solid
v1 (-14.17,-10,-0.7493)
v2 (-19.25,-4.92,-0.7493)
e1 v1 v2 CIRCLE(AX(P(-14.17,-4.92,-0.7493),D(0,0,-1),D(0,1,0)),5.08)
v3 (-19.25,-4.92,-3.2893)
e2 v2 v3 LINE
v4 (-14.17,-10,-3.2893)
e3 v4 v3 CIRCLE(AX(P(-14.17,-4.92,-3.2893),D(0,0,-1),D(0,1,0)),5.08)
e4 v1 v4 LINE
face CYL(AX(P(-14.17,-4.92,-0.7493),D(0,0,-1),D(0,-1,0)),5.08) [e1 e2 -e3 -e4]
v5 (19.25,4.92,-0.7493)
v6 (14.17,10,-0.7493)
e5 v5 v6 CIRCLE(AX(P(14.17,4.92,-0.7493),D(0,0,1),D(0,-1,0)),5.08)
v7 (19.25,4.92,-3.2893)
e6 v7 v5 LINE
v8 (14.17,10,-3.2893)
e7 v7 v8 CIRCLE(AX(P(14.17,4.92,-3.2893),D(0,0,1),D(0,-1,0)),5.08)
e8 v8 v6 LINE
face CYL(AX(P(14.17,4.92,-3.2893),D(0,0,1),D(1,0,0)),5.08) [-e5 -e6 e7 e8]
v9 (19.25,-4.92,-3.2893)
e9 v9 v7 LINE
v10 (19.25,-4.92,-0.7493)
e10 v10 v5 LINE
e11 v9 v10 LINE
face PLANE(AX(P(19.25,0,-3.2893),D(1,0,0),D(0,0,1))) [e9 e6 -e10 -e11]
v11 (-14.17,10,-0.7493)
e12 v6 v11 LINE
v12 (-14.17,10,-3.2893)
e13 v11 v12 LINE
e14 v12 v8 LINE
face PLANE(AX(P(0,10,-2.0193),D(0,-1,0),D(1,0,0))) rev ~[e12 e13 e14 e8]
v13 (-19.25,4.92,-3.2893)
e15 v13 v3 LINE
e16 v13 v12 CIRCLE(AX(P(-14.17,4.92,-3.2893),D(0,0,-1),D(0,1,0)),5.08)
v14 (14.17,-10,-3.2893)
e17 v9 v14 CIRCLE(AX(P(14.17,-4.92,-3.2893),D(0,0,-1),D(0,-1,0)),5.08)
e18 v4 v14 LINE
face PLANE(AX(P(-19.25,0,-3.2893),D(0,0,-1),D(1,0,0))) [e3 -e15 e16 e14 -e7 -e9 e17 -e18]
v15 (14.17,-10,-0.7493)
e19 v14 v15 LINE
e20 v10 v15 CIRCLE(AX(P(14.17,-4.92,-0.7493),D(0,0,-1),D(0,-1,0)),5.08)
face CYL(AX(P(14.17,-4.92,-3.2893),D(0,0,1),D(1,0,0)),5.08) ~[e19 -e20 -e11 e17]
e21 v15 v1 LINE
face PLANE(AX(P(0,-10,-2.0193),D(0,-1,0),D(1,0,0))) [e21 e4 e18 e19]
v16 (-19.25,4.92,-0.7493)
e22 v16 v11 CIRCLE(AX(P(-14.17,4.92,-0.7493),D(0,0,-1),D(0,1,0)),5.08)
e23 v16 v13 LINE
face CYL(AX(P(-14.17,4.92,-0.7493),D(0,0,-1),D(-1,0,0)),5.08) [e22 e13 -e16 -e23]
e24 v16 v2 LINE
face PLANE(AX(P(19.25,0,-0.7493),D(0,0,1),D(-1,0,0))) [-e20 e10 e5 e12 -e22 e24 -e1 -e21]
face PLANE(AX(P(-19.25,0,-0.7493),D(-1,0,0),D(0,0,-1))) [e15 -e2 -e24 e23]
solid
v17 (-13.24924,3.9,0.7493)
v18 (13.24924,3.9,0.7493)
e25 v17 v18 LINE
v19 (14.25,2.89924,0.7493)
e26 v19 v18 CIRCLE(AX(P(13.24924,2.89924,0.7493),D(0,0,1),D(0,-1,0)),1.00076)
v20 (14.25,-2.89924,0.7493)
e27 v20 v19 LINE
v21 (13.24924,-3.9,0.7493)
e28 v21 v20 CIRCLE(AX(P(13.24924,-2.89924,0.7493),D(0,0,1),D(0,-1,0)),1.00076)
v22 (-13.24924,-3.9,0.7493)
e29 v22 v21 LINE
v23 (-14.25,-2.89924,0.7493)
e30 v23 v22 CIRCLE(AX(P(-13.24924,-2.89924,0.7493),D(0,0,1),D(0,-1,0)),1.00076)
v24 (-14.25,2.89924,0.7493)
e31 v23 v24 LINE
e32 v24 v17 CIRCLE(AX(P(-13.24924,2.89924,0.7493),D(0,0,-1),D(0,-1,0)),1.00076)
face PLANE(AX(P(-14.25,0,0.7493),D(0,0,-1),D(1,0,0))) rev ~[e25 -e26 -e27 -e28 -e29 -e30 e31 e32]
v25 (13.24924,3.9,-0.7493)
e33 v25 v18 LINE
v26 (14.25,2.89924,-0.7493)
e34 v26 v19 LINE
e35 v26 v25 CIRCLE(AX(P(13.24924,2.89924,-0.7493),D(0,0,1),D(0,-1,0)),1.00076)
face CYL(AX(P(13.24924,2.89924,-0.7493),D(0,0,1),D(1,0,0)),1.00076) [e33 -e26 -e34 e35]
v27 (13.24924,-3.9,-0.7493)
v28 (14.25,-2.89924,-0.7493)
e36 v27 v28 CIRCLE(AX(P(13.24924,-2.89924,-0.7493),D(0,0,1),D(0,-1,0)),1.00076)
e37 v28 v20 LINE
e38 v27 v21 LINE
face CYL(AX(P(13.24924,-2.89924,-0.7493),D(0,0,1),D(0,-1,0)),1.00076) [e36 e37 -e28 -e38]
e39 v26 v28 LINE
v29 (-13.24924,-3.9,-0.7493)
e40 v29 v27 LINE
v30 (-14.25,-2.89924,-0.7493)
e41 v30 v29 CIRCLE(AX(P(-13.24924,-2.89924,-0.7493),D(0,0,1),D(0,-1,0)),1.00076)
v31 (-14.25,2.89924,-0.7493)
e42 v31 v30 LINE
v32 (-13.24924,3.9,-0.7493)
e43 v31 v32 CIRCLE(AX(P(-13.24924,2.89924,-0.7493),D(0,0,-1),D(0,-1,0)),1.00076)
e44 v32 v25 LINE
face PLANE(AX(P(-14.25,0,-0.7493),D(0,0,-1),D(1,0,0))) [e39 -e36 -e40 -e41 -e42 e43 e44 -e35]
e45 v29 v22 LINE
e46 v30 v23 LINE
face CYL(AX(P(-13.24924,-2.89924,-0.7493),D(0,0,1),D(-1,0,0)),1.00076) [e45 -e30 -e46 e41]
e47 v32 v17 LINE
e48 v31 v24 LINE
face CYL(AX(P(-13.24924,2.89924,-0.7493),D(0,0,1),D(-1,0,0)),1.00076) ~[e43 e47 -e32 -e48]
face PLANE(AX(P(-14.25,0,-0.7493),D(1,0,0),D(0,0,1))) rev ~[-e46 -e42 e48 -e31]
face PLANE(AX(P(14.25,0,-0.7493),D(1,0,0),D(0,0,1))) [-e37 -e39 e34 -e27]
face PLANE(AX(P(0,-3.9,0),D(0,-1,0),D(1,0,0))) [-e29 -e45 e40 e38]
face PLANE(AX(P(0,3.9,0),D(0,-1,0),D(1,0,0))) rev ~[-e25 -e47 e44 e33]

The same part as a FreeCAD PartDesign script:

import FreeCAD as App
import Part
import Sketcher
from FreeCAD import Vector
Q = App.Units.Quantity


def edges_at(feature, points):
    """Names of the edges that pass closest to the given points."""
    edges = feature.Shape.Edges
    near = lambda p: min(range(len(edges)), key=lambda i: edges[i].distToShape(Part.Vertex(*p))[0])
    return sorted({f"Edge{near(p) + 1}" for p in points})

doc = App.newDocument("Part")
body = doc.addObject("PartDesign::Body", "Body")

# Sketch on XZ plane
sketch1 = doc.addObject("Sketcher::SketchObject", "Sketch")
body.addObject(sketch1)
sketch1.AttachmentSupport = (doc.XZ_Plane, [""])
sketch1.MapMode = "FlatFace"
sketch1.addGeometry([
    Part.LineSegment(Vector(-14.2, 0.7, 0), Vector(-14.2, -0.7, 0)),
    Part.LineSegment(Vector(-14.2, -0.7, 0), Vector(14.2, -0.7, 0)),
    Part.LineSegment(Vector(14.2, -0.7, 0), Vector(14.2, 0.7, 0)),
    Part.LineSegment(Vector(14.2, 0.7, 0), Vector(-14.2, 0.7, 0)),
], False)
sketch1.addConstraint([
    Sketcher.Constraint("Coincident", 0, 2, 1, 1),
    Sketcher.Constraint("Coincident", 1, 2, 2, 1),
    Sketcher.Constraint("Coincident", 2, 2, 3, 1),
    Sketcher.Constraint("Coincident", 3, 2, 0, 1),
    Sketcher.Constraint("Vertical", 0),
    Sketcher.Constraint("Horizontal", 1),
    Sketcher.Constraint("Vertical", 2),
    Sketcher.Constraint("Horizontal", 3),
    Sketcher.Constraint("Symmetric", 0, 2, 2, 2, -1, 1),
    Sketcher.Constraint("DistanceX", 1, 1, 1, 2, Q("28.5 mm")),
    Sketcher.Constraint("DistanceY", 0, 2, 0, 1, Q("1.4986 mm")),
])
pad1 = doc.addObject("PartDesign::Pad", "Pad")
body.addObject(pad1)
pad1.Profile = sketch1
pad1.Length = 7.8
pad1.Midplane = True
doc.recompute()

fillet = doc.addObject("PartDesign::Fillet", "Fillet")
body.addObject(fillet)
fillet.Base = (pad1, edges_at(pad1, [
    (-14.25, -3.9, 0),
    (-14.25, 3.9, 0),
    (14.25, 3.9, 0),
    (14.25, -3.9, 0),
]))
fillet.Radius = 1.00076
body2 = doc.addObject("PartDesign::Body", "Body001")

# Sketch on XZ plane
sketch2 = doc.addObject("Sketcher::SketchObject", "Sketch001")
body2.addObject(sketch2)
sketch2.AttachmentSupport = (doc.getObject("XZ_Plane001"), [""])
sketch2.MapMode = "FlatFace"
sketch2.addGeometry([
    Part.LineSegment(Vector(19.2, -0.7, 0), Vector(-19.2, -0.7, 0)),
    Part.LineSegment(Vector(-19.2, -0.7, 0), Vector(-19.2, -3.3, 0)),
    Part.LineSegment(Vector(-19.2, -3.3, 0), Vector(19.2, -3.3, 0)),
    Part.LineSegment(Vector(19.2, -3.3, 0), Vector(19.2, -0.7, 0)),
], False)
sketch2.addConstraint([
    Sketcher.Constraint("Coincident", 0, 2, 1, 1),
    Sketcher.Constraint("Coincident", 1, 2, 2, 1),
    Sketcher.Constraint("Coincident", 2, 2, 3, 1),
    Sketcher.Constraint("Coincident", 3, 2, 0, 1),
    Sketcher.Constraint("Horizontal", 0),
    Sketcher.Constraint("Vertical", 1),
    Sketcher.Constraint("Horizontal", 2),
    Sketcher.Constraint("Vertical", 3),
    Sketcher.Constraint("DistanceX", 0, 2, 0, 1, Q("38.5 mm")),
    Sketcher.Constraint("DistanceY", 1, 2, 1, 1, Q("2.54 mm")),
    Sketcher.Constraint("DistanceX", 0, 2, -1, 1, Q("19.25 mm")),
    Sketcher.Constraint("DistanceY", 0, 2, -1, 1, Q("0.7493 mm")),
])
pad2 = doc.addObject("PartDesign::Pad", "Pad001")
body2.addObject(pad2)
pad2.Profile = sketch2
pad2.Length = 20
pad2.Midplane = True
doc.recompute()

fillet2 = doc.addObject("PartDesign::Fillet", "Fillet001")
body2.addObject(fillet2)
fillet2.Base = (pad2, edges_at(pad2, [
    (-19.25, -10, -2.019),
    (19.25, -10, -2.019),
    (19.25, 10, -2.019),
    (-19.25, 10, -2.019),
]))
fillet2.Radius = 5.08

doc.recompute()
